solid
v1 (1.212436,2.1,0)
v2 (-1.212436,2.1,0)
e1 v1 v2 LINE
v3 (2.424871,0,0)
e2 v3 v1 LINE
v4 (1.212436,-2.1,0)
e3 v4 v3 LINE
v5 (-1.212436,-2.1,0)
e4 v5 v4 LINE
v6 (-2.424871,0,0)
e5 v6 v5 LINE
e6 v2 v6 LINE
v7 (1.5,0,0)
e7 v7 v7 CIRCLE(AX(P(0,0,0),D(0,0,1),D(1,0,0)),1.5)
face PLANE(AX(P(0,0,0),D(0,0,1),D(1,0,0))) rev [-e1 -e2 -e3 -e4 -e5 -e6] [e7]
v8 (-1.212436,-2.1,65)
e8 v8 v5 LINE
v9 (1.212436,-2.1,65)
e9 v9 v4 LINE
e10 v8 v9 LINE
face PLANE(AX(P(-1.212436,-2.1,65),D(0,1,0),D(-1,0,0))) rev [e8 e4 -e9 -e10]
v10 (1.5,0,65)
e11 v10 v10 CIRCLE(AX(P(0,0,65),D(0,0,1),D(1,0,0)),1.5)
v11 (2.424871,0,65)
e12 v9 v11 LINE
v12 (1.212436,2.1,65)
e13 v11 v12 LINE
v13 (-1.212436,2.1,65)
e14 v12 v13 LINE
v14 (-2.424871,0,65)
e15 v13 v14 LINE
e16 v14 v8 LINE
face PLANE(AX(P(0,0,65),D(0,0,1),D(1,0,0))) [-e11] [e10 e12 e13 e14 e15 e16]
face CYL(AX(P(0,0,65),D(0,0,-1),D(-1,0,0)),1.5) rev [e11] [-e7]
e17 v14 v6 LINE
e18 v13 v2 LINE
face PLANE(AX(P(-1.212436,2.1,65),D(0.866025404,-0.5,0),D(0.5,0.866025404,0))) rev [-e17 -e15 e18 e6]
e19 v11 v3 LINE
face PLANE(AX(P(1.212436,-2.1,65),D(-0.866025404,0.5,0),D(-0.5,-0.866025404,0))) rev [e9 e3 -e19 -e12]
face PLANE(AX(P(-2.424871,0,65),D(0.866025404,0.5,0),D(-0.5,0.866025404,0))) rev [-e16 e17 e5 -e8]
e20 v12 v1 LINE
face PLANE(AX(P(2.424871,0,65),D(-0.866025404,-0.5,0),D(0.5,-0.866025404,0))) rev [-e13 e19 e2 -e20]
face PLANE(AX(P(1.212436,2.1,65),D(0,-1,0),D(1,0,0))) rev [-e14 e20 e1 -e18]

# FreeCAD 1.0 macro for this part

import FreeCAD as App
import Part
import Sketcher

V = App.Vector
Q = App.Units.Quantity

doc = App.newDocument("Part")
body = doc.addObject("PartDesign::Body", "Body")

# Sketch on XY plane
sketch1 = body.newObject("Sketcher::SketchObject", "Sketch")
sketch1.AttachmentSupport = (doc.getObject("XY_Plane"), [""])
sketch1.MapMode = "FlatFace"
sketch1.addGeometry(Part.LineSegment(V(2.424871, 0, 0), V(1.212436, 2.1, 0)), False)
sketch1.addGeometry(Part.LineSegment(V(1.212436, 2.1, 0), V(-1.212436, 2.1, 0)), False)
sketch1.addGeometry(Part.LineSegment(V(-1.212436, 2.1, 0), V(-2.424871, 0, 0)), False)
sketch1.addGeometry(Part.LineSegment(V(-2.424871, 0, 0), V(-1.212436, -2.1, 0)), False)
sketch1.addGeometry(Part.LineSegment(V(-1.212436, -2.1, 0), V(1.212436, -2.1, 0)), False)
sketch1.addGeometry(Part.LineSegment(V(1.212436, -2.1, 0), V(2.424871, 0, 0)), False)
sketch1.addGeometry(Part.Circle(V(0, 0, 0), V(0, 0, 1), 1.5), False)
sketch1.addConstraint(Sketcher.Constraint("Coincident", 0, 2, 1, 1))
sketch1.addConstraint(Sketcher.Constraint("Coincident", 1, 2, 2, 1))
sketch1.addConstraint(Sketcher.Constraint("Coincident", 2, 2, 3, 1))
sketch1.addConstraint(Sketcher.Constraint("Coincident", 3, 2, 4, 1))
sketch1.addConstraint(Sketcher.Constraint("Coincident", 4, 2, 5, 1))
sketch1.addConstraint(Sketcher.Constraint("Coincident", 5, 2, 0, 1))
sketch1.addConstraint(Sketcher.Constraint("Horizontal", 1))
sketch1.addConstraint(Sketcher.Constraint("Horizontal", 4))
sketch1.addConstraint(Sketcher.Constraint("Coincident", 6, 3, -1, 1))
sketch1.addConstraint(Sketcher.Constraint("Symmetric", 0, 2, 3, 2, -1, 1))
sketch1.addConstraint(Sketcher.Constraint("Symmetric", 2, 2, 5, 2, -1, 1))
sketch1.addConstraint(Sketcher.Constraint("PointOnObject", 2, 2, -1))
sketch1.addConstraint(Sketcher.Constraint("Parallel", 2, 5))
sketch1.addConstraint(Sketcher.Constraint("Vertical", 1, 2, 3, 2))
sketch1.addConstraint(Sketcher.Constraint("Diameter", 6, Q("3 mm")))
sketch1.addConstraint(Sketcher.Constraint("Angle", 0, Q("120 deg")))
sketch1.addConstraint(Sketcher.Constraint("DistanceY", -1, 1, 0, 2, Q("2.1 mm")))
sketch1.addConstraint(Sketcher.Constraint("DistanceX", 1, 2, 1, 1, Q("2.424871 mm")))
pad1 = body.newObject("PartDesign::Pad", "Pad")
pad1.Profile = sketch1
pad1.Length = 65

doc.recompute()
